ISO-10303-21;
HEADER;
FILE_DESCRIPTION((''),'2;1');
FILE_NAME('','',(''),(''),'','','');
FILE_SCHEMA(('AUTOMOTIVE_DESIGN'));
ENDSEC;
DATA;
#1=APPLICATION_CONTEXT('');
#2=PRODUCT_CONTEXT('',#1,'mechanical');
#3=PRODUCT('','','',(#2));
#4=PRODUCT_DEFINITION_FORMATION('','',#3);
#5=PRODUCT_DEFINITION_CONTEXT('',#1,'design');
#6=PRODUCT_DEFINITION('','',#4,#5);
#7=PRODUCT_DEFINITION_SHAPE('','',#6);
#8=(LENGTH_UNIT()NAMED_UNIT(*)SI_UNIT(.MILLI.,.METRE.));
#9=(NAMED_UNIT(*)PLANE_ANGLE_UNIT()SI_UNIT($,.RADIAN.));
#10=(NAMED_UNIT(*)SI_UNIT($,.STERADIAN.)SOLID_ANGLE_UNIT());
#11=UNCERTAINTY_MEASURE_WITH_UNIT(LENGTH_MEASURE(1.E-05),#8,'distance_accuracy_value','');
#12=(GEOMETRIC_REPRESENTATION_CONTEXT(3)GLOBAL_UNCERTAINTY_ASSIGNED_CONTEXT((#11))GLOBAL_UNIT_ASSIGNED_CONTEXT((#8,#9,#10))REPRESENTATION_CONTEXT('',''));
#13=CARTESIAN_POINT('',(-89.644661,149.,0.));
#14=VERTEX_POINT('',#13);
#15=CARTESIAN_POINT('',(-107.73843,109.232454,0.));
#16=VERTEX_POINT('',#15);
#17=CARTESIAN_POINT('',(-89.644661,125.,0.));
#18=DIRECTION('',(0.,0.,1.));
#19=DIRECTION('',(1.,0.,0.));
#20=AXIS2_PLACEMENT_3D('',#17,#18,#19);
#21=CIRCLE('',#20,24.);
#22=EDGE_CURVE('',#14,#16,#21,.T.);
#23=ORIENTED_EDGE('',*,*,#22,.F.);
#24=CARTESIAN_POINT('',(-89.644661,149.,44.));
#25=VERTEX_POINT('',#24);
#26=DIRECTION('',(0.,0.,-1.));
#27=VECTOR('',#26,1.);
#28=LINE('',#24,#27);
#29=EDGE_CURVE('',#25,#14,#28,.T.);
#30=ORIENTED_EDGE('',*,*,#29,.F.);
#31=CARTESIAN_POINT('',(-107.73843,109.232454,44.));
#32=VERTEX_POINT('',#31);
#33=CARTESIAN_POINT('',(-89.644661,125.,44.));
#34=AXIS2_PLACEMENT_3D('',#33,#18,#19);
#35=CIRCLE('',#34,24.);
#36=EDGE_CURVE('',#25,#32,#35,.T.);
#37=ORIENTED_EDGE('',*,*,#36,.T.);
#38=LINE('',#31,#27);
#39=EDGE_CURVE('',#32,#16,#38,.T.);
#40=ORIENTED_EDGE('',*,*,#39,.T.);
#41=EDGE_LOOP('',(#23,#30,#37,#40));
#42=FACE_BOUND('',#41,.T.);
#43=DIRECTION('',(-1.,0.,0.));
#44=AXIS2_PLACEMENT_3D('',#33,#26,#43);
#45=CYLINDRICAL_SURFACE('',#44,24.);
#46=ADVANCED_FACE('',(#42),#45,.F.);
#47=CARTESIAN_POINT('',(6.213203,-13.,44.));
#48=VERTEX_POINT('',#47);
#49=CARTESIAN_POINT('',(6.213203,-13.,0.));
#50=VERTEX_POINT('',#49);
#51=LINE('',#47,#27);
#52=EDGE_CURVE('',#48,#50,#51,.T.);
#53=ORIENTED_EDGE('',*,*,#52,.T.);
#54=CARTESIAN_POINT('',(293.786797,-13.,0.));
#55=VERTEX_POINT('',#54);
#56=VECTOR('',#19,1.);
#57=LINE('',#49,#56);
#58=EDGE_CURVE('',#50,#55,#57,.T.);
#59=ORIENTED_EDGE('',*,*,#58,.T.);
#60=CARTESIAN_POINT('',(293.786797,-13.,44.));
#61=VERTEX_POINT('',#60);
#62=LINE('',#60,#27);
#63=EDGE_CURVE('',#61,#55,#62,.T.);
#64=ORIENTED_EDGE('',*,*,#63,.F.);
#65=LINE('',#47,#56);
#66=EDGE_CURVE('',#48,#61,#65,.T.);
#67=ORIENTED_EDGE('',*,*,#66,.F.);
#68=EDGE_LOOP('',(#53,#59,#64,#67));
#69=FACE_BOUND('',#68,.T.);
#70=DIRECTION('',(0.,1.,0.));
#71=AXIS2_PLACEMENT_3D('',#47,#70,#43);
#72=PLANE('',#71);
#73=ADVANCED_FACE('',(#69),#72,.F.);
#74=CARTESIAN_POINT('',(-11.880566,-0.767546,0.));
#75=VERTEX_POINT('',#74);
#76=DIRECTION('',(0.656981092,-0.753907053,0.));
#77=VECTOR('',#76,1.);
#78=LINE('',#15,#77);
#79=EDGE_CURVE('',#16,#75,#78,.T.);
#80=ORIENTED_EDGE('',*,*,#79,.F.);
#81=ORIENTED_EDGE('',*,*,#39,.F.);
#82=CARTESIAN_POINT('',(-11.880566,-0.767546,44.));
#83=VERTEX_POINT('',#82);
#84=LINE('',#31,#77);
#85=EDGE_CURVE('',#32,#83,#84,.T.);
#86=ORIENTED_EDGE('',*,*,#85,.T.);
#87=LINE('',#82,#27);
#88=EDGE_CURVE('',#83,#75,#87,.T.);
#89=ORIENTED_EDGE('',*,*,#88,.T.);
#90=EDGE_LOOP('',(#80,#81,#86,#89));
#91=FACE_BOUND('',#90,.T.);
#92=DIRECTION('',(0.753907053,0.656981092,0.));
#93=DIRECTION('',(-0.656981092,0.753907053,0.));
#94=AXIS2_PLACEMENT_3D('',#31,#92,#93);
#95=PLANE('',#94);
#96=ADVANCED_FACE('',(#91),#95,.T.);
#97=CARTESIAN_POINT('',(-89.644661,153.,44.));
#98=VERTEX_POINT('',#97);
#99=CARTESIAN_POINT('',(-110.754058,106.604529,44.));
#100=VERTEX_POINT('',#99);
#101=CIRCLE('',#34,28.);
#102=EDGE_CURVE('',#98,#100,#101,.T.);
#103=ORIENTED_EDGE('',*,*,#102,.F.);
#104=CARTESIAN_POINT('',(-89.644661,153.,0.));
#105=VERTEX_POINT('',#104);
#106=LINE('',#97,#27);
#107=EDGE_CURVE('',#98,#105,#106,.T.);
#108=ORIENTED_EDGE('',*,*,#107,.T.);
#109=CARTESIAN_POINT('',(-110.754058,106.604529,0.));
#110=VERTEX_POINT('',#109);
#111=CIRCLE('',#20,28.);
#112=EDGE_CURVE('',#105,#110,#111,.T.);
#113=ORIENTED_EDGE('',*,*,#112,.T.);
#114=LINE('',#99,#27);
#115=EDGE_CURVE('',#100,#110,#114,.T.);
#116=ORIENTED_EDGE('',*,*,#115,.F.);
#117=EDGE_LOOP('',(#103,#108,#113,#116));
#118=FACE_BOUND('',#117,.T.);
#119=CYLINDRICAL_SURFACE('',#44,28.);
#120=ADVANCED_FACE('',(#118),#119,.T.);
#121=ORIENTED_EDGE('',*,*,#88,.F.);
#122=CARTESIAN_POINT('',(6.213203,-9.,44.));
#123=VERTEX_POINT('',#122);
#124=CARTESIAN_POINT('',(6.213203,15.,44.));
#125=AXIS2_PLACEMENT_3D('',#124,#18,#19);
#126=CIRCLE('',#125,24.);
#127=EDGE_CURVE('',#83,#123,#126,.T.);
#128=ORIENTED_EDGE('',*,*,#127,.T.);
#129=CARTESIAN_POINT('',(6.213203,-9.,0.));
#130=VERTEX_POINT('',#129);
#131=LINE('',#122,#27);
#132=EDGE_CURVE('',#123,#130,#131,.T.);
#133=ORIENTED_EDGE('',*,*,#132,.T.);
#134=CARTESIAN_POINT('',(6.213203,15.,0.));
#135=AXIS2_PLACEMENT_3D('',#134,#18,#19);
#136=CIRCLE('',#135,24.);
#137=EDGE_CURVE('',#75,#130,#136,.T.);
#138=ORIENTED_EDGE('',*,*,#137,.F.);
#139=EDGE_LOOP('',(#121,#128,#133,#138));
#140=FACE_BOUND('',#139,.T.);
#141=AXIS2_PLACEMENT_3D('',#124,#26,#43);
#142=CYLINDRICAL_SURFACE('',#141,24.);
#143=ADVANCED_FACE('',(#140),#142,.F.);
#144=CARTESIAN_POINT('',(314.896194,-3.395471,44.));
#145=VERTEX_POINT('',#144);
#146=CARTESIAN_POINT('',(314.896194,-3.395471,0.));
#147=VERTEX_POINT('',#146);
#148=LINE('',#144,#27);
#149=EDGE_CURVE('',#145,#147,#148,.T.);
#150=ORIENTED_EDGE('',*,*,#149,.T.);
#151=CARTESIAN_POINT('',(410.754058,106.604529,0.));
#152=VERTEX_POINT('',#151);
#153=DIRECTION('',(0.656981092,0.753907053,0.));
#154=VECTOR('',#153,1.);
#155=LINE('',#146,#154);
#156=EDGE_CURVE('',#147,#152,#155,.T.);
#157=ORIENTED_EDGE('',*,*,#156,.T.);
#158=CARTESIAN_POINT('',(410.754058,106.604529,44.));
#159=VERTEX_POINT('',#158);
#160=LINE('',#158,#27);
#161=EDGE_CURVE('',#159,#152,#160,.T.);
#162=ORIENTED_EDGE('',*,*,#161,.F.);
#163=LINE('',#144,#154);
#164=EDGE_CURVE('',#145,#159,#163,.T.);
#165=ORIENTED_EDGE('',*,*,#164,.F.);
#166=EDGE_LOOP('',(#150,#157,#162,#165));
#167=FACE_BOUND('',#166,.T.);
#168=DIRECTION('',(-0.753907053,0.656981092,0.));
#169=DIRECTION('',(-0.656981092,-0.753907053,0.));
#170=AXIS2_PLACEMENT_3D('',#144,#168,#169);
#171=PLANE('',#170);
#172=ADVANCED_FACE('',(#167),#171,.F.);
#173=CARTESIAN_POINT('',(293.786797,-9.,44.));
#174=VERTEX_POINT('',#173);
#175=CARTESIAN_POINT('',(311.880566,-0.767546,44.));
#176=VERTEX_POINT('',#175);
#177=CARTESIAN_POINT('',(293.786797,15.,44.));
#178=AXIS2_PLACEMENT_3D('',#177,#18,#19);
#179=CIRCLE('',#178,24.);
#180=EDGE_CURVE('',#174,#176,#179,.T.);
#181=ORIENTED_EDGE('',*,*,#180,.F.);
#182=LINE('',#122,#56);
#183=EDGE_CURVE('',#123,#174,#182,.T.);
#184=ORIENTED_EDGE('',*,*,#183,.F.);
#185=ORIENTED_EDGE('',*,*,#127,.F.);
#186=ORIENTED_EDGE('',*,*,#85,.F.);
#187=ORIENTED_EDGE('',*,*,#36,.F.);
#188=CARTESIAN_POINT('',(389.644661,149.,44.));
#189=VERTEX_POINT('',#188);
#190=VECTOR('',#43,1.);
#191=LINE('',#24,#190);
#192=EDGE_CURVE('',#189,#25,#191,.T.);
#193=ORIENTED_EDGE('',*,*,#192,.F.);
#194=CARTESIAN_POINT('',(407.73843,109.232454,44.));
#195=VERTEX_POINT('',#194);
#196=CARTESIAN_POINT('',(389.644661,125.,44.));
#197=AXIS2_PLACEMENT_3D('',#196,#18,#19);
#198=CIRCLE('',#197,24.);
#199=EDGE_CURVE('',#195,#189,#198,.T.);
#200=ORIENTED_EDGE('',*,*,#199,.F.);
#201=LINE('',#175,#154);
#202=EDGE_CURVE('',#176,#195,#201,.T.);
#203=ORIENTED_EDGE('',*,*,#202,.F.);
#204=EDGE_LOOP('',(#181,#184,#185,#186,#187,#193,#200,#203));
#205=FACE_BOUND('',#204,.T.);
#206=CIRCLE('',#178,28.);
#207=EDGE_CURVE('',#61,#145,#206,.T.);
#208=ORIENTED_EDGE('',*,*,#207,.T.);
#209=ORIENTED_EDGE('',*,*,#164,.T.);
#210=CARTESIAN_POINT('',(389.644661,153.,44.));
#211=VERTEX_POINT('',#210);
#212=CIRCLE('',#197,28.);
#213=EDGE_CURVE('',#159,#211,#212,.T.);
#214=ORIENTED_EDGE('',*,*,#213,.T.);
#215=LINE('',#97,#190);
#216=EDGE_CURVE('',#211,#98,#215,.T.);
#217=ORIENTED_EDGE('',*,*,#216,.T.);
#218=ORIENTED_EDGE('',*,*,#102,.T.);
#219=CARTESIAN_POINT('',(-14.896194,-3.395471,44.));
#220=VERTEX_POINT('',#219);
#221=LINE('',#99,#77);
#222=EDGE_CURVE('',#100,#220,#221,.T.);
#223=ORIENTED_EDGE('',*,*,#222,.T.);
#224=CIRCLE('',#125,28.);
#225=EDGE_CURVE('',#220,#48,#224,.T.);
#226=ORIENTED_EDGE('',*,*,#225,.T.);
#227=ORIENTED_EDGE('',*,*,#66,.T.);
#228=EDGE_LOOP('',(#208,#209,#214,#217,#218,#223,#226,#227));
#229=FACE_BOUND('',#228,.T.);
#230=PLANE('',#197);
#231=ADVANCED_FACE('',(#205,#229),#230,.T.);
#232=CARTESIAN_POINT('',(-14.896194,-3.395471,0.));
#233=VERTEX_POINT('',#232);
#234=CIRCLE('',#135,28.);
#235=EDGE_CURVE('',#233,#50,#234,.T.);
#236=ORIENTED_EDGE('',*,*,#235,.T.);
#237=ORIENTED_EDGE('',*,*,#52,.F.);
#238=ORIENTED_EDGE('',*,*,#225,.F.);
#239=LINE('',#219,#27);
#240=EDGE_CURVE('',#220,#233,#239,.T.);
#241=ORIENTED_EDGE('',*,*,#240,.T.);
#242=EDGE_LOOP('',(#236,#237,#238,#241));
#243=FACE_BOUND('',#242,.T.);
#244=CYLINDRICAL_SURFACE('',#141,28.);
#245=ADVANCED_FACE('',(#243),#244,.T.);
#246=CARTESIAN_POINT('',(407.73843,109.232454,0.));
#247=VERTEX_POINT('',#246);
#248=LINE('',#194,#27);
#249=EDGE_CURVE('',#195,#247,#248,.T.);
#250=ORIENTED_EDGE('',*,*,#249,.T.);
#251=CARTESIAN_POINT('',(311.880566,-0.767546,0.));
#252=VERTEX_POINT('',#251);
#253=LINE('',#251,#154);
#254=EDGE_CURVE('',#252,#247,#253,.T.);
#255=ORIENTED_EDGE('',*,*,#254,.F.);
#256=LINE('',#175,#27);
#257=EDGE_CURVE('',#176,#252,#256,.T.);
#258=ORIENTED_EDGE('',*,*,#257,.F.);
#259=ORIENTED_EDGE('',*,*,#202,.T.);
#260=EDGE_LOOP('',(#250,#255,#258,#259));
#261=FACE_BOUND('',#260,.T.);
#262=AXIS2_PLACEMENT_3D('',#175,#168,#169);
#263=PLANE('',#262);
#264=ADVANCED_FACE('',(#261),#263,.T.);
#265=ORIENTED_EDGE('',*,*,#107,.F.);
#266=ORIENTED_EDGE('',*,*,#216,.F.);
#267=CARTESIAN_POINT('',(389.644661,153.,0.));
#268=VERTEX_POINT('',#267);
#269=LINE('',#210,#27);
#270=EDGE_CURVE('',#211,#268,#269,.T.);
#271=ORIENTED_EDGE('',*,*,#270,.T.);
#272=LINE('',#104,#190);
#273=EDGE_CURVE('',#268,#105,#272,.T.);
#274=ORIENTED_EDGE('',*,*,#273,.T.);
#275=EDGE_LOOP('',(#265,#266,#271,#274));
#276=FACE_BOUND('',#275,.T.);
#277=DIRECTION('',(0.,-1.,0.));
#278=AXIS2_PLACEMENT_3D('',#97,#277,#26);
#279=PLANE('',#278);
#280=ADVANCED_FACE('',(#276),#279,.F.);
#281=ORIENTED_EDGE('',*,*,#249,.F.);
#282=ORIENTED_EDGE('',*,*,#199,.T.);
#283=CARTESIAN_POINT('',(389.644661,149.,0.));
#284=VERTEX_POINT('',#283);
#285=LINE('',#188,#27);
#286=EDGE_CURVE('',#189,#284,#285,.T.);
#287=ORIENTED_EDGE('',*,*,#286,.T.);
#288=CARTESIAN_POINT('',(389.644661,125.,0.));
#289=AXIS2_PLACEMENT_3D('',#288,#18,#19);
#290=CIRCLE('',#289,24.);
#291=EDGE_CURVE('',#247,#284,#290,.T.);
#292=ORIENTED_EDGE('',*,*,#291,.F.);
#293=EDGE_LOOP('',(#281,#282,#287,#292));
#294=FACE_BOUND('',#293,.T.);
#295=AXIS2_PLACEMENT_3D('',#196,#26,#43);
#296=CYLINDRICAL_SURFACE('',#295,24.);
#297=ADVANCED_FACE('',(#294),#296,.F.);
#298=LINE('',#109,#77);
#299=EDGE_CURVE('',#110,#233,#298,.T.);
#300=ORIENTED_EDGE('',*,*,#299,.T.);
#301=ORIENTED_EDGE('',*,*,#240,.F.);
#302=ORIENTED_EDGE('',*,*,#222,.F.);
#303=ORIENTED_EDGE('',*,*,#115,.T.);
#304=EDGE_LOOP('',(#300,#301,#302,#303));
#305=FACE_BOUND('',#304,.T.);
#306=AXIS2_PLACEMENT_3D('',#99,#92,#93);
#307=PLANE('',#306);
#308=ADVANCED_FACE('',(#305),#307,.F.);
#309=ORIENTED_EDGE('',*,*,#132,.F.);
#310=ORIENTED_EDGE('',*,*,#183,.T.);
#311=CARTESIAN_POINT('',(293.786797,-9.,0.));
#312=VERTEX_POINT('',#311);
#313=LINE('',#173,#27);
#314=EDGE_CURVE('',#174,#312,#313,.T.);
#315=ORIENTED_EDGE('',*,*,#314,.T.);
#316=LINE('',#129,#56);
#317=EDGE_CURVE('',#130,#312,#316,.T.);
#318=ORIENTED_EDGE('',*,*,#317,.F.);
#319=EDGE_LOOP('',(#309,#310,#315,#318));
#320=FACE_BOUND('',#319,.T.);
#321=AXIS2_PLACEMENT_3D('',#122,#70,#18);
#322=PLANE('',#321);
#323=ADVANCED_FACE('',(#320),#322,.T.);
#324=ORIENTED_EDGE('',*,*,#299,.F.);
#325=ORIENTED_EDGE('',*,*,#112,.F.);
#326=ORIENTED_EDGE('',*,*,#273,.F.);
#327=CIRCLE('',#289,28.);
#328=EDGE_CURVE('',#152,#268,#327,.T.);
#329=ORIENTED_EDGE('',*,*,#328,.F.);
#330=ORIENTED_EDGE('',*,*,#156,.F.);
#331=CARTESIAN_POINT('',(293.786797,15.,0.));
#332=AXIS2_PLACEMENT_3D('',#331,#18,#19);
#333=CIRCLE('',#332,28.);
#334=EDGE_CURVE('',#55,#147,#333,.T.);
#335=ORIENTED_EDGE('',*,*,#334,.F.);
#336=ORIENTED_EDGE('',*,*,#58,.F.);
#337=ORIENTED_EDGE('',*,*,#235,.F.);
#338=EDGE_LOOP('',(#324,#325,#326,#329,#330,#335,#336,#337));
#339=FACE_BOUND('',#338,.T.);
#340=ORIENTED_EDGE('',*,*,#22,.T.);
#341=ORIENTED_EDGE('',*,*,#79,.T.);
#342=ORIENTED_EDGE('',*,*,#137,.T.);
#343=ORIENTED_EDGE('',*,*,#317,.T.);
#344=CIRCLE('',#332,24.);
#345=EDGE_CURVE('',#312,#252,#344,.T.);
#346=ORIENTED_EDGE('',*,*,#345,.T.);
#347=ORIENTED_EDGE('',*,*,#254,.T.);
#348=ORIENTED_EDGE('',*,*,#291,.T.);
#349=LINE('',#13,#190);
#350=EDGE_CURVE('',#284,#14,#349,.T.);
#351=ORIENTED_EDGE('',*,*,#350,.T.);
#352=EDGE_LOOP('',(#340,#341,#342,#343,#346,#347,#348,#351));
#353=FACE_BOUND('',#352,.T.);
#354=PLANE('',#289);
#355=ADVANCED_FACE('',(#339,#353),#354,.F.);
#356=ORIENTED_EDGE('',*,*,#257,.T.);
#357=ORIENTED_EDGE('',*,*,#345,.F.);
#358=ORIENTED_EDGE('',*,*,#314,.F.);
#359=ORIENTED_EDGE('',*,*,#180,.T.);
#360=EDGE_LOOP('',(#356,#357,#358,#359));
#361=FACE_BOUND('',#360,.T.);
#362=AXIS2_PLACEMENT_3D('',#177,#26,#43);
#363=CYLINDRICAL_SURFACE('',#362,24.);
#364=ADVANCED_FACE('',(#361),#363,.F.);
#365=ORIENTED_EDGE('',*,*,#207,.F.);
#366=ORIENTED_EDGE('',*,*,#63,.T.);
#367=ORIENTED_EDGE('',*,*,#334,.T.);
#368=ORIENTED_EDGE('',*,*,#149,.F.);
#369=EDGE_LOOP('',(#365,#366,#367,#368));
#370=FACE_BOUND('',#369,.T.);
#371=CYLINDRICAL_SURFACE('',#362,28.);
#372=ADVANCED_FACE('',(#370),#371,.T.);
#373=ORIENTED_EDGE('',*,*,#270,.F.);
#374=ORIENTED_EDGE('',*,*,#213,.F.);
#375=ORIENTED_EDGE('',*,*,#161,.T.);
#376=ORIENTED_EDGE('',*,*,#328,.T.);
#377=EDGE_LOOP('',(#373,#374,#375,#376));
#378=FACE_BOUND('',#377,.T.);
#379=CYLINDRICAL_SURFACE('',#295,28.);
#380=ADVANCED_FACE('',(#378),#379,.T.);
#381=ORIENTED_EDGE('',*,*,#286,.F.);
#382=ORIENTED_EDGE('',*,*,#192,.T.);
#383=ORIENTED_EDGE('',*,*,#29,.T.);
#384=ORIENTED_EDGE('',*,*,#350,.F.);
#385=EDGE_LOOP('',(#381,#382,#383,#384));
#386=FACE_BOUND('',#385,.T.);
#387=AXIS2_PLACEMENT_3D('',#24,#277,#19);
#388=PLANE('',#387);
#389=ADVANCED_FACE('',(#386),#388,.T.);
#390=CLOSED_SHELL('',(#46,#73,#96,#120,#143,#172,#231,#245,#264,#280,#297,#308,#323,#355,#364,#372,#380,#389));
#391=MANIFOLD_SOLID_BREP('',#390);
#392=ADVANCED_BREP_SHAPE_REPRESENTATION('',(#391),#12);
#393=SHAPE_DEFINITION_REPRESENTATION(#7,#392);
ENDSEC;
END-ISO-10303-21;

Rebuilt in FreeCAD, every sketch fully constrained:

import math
import FreeCAD as App
import Part
import Sketcher
from FreeCAD import Vector
Q = App.Units.Quantity

doc = App.newDocument("Part")
body = doc.addObject("PartDesign::Body", "Body")

# Sketch on XY plane
sketch1 = body.newObject("Sketcher::SketchObject", "Sketch")
sketch1.AttachmentSupport = (doc.getObject("XY_Plane"), [""])
sketch1.MapMode = "FlatFace"
sketch1.addGeometry([
    Part.LineSegment(Vector(389.644661, 153, 0), Vector(-89.644661, 153, 0)),  # 0
    Part.ArcOfCircle(Part.Circle(Vector(-89.644661, 125, 0), Vector(0, 0, 1), 28), math.radians(90), math.radians(221.070038)),  # 1
    Part.LineSegment(Vector(-110.754058, 106.604529, 0), Vector(-14.896194, -3.395471, 0)),  # 2
    Part.ArcOfCircle(Part.Circle(Vector(6.213203, 15, 0), Vector(0, 0, 1), 28), math.radians(-138.929962), math.radians(-90)),  # 3
    Part.LineSegment(Vector(6.213203, -13, 0), Vector(293.786797, -13, 0)),  # 4
    Part.ArcOfCircle(Part.Circle(Vector(293.786797, 15, 0), Vector(0, 0, 1), 28), math.radians(-90), math.radians(-41.070038)),  # 5
    Part.LineSegment(Vector(314.896194, -3.395471, 0), Vector(410.754058, 106.604529, 0)),  # 6
    Part.ArcOfCircle(Part.Circle(Vector(389.644661, 125, 0), Vector(0, 0, 1), 28), math.radians(-41.070038), math.radians(90)),  # 7
    Part.LineSegment(Vector(-89.644661, 149, 0), Vector(389.644661, 149, 0)),  # 8
    Part.ArcOfCircle(Part.Circle(Vector(389.644661, 125, 0), Vector(0, 0, 1), 24), math.radians(-41.070038), math.radians(90)),  # 9
    Part.LineSegment(Vector(407.73843, 109.232454, 0), Vector(311.880566, -0.767546, 0)),  # 10
    Part.ArcOfCircle(Part.Circle(Vector(293.786797, 15, 0), Vector(0, 0, 1), 24), math.radians(-90), math.radians(-41.070038)),  # 11
    Part.LineSegment(Vector(293.786797, -9, 0), Vector(6.213203, -9, 0)),  # 12
    Part.ArcOfCircle(Part.Circle(Vector(6.213203, 15, 0), Vector(0, 0, 1), 24), math.radians(-138.929962), math.radians(-90)),  # 13
    Part.LineSegment(Vector(-11.880566, -0.767546, 0), Vector(-107.73843, 109.232454, 0)),  # 14
    Part.ArcOfCircle(Part.Circle(Vector(-89.644661, 125, 0), Vector(0, 0, 1), 24), math.radians(90), math.radians(221.070038)),  # 15
], False)
sketch1.addConstraint([
    Sketcher.Constraint("Tangent", 0, 2, 1, 1),
    Sketcher.Constraint("Tangent", 1, 2, 2, 1),
    Sketcher.Constraint("Tangent", 2, 2, 3, 1),
    Sketcher.Constraint("Tangent", 3, 2, 4, 1),
    Sketcher.Constraint("Tangent", 4, 2, 5, 1),
    Sketcher.Constraint("Tangent", 5, 2, 6, 1),
    Sketcher.Constraint("Tangent", 6, 2, 7, 1),
    Sketcher.Constraint("Tangent", 7, 2, 0, 1),
    Sketcher.Constraint("Tangent", 8, 2, 9, 2),
    Sketcher.Constraint("Tangent", 9, 1, 10, 1),
    Sketcher.Constraint("Tangent", 10, 2, 11, 2),
    Sketcher.Constraint("Tangent", 11, 1, 12, 1),
    Sketcher.Constraint("Tangent", 12, 2, 13, 2),
    Sketcher.Constraint("Tangent", 13, 1, 14, 1),
    Sketcher.Constraint("Tangent", 14, 2, 15, 2),
    Sketcher.Constraint("Tangent", 15, 1, 8, 1),
    Sketcher.Constraint("Horizontal", 0),
    Sketcher.Constraint("Horizontal", 4),
    Sketcher.Constraint("Horizontal", 8),
    Sketcher.Constraint("Horizontal", 12),
    Sketcher.Constraint("Coincident", 9, 3, 7, 3),
    Sketcher.Constraint("Coincident", 11, 3, 5, 3),
    Sketcher.Constraint("Coincident", 13, 3, 3, 3),
    Sketcher.Constraint("Coincident", 15, 3, 1, 3),
    Sketcher.Constraint("Equal", 1, 3),
    Sketcher.Constraint("Equal", 3, 5),
    Sketcher.Constraint("Equal", 5, 7),
    Sketcher.Constraint("Equal", 9, 11),
    Sketcher.Constraint("Horizontal", 2, 2, 5, 2),
    Sketcher.Constraint("Radius", 1, Q("28 mm")),
    Sketcher.Constraint("Radius", 9, Q("24 mm")),
    Sketcher.Constraint("DistanceY", -1, 1, 1, 3, Q("125 mm")),
    Sketcher.Constraint("DistanceY", -1, 1, 3, 3, Q("15 mm")),
    Sketcher.Constraint("DistanceX", 0, 2, 0, 1, Q("479.289322 mm")),
    Sketcher.Constraint("Distance", 2, Q("145.90658 mm")),
    Sketcher.Constraint("DistanceX", 1, 3, -1, 1, Q("89.644661 mm")),
])
pad1 = body.newObject("PartDesign::Pad", "Pad")
pad1.Profile = sketch1
pad1.Length = 44

doc.recompute()
